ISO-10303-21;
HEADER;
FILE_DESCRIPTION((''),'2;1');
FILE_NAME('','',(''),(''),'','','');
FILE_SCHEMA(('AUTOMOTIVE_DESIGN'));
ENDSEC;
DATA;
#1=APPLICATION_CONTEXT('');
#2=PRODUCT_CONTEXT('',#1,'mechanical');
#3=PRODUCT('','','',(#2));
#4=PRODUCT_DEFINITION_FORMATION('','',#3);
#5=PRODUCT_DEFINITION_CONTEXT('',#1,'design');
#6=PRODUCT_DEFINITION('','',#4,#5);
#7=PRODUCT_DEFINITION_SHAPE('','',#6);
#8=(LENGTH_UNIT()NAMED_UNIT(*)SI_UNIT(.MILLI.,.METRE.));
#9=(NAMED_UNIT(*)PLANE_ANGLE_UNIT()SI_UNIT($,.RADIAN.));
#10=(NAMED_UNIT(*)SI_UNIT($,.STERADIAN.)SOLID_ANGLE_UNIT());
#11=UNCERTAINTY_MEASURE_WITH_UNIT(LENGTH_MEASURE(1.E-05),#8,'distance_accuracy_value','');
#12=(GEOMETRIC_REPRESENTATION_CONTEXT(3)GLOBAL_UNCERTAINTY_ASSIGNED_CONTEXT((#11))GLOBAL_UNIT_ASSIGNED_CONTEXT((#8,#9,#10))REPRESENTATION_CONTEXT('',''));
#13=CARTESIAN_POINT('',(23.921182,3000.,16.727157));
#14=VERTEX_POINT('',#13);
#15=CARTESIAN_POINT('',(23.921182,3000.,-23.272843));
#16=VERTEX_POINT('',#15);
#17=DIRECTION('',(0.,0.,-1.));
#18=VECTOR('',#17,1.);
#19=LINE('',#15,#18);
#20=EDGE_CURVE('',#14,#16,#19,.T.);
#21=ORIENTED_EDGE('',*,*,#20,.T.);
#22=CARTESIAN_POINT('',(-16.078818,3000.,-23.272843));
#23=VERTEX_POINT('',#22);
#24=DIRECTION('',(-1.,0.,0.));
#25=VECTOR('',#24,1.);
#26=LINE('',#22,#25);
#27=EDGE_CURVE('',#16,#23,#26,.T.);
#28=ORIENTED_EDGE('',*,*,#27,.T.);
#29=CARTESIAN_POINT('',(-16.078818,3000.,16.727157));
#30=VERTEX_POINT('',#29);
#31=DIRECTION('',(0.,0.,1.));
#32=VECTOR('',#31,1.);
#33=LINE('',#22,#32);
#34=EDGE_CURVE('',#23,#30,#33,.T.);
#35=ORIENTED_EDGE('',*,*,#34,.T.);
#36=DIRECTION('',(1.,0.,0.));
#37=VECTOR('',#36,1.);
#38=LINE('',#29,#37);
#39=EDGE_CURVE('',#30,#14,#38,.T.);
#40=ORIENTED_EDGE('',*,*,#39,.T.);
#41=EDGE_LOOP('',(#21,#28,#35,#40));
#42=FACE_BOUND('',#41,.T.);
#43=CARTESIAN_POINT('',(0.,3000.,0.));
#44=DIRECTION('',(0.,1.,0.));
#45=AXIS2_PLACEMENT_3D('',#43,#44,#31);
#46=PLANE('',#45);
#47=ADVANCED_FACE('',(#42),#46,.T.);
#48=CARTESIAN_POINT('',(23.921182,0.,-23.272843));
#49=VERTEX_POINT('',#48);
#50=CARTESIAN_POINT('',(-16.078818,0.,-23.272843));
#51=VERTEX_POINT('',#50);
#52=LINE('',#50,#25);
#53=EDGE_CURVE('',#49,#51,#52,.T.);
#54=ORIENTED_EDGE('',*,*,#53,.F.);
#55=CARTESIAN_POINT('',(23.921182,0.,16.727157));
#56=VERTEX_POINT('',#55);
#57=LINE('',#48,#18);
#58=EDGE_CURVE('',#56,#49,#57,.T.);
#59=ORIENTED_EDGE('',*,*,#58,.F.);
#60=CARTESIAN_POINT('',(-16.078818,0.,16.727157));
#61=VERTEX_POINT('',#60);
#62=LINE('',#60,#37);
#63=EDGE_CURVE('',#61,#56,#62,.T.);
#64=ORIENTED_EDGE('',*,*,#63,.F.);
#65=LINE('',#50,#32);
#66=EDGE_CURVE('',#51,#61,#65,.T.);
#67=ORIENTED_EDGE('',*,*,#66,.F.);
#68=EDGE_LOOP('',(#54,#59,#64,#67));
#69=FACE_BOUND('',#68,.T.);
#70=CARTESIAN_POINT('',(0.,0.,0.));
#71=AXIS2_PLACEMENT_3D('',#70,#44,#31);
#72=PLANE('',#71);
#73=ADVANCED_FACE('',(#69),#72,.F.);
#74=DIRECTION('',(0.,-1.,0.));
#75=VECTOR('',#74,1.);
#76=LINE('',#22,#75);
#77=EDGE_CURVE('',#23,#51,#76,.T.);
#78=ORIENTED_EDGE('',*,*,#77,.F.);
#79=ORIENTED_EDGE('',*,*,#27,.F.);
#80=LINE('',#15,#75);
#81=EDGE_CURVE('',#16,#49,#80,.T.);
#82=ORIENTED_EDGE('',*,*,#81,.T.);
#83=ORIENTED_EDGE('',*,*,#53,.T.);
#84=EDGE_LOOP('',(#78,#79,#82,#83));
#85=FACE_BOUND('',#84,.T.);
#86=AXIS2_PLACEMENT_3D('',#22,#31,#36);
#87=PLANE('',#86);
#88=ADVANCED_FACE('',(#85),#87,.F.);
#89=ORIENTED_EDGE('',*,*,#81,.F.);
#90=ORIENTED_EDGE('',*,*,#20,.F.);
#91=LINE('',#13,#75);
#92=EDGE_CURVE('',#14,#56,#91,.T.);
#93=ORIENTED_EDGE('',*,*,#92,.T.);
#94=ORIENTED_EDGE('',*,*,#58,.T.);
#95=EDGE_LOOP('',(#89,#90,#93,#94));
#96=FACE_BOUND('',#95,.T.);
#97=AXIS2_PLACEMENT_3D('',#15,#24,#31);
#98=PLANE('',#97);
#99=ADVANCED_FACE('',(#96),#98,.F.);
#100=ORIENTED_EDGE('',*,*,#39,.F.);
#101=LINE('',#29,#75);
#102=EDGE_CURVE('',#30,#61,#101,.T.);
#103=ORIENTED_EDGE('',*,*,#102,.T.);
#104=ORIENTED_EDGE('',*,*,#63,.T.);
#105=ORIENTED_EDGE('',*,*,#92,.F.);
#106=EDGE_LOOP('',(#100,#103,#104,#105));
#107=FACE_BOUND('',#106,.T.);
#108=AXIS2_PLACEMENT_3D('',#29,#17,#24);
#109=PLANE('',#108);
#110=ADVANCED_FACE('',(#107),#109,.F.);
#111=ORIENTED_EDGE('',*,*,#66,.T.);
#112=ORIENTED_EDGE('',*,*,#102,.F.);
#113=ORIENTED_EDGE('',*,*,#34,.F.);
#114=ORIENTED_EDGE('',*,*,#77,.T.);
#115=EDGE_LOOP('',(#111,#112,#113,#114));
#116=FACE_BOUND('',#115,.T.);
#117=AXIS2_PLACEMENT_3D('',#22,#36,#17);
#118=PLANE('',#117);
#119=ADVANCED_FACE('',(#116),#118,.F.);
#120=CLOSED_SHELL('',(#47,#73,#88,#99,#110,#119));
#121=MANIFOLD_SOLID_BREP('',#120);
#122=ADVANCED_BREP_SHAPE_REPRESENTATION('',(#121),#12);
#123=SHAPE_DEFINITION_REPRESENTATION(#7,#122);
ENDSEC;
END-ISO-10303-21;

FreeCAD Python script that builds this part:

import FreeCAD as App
import Part
import Sketcher
from FreeCAD import Vector
Q = App.Units.Quantity

doc = App.newDocument("Part")
params = doc.addObject("Spreadsheet::Sheet", "Params")
for row, (alias, value) in enumerate([
    ("sketch1_width", "40 mm"),
    ("pad1_length", "3000 mm"),
], start=1):
    params.set(f"A{row}", alias)
    params.set(f"B{row}", "=" + value)
    params.setAlias(f"B{row}", alias)

body = doc.addObject("PartDesign::Body", "Body")

sketch1 = body.newObject("Sketcher::SketchObject", "Sketch")
sketch1.AttachmentSupport = (doc.getObject("XZ_Plane"), [""])
sketch1.MapMode = "FlatFace"
sketch1.addGeometry([
    Part.LineSegment(Vector(-16, -23, 0), Vector(-16, 17, 0)),
    Part.LineSegment(Vector(-16, 17, 0), Vector(24, 17, 0)),
    Part.LineSegment(Vector(24, 17, 0), Vector(24, -23, 0)),
    Part.LineSegment(Vector(24, -23, 0), Vector(-16, -23, 0)),
], False)
sketch1.addConstraint([
    Sketcher.Constraint("Coincident", 0, 2, 1, 1),
    Sketcher.Constraint("Coincident", 1, 2, 2, 1),
    Sketcher.Constraint("Coincident", 2, 2, 3, 1),
    Sketcher.Constraint("Coincident", 3, 2, 0, 1),
    Sketcher.Constraint("Vertical", 0),
    Sketcher.Constraint("Horizontal", 1),
    Sketcher.Constraint("Vertical", 2),
    Sketcher.Constraint("Horizontal", 3),
    Sketcher.Constraint("Equal", 3, 0),
    Sketcher.Constraint("DistanceX", 1, 1, 1, 2, Q("40 mm")),
    Sketcher.Constraint("DistanceX", 0, 2, -1, 1, Q("16.078818 mm")),
    Sketcher.Constraint("DistanceY", -1, 1, 0, 2, Q("16.727157 mm")),
])
sketch1.setExpression("Constraints[9]", "Params.sketch1_width")
pad1 = body.newObject("PartDesign::Pad", "Pad")
pad1.Profile = sketch1
pad1.setExpression("Length", "Params.pad1_length")
pad1.Reversed = True

doc.recompute()
